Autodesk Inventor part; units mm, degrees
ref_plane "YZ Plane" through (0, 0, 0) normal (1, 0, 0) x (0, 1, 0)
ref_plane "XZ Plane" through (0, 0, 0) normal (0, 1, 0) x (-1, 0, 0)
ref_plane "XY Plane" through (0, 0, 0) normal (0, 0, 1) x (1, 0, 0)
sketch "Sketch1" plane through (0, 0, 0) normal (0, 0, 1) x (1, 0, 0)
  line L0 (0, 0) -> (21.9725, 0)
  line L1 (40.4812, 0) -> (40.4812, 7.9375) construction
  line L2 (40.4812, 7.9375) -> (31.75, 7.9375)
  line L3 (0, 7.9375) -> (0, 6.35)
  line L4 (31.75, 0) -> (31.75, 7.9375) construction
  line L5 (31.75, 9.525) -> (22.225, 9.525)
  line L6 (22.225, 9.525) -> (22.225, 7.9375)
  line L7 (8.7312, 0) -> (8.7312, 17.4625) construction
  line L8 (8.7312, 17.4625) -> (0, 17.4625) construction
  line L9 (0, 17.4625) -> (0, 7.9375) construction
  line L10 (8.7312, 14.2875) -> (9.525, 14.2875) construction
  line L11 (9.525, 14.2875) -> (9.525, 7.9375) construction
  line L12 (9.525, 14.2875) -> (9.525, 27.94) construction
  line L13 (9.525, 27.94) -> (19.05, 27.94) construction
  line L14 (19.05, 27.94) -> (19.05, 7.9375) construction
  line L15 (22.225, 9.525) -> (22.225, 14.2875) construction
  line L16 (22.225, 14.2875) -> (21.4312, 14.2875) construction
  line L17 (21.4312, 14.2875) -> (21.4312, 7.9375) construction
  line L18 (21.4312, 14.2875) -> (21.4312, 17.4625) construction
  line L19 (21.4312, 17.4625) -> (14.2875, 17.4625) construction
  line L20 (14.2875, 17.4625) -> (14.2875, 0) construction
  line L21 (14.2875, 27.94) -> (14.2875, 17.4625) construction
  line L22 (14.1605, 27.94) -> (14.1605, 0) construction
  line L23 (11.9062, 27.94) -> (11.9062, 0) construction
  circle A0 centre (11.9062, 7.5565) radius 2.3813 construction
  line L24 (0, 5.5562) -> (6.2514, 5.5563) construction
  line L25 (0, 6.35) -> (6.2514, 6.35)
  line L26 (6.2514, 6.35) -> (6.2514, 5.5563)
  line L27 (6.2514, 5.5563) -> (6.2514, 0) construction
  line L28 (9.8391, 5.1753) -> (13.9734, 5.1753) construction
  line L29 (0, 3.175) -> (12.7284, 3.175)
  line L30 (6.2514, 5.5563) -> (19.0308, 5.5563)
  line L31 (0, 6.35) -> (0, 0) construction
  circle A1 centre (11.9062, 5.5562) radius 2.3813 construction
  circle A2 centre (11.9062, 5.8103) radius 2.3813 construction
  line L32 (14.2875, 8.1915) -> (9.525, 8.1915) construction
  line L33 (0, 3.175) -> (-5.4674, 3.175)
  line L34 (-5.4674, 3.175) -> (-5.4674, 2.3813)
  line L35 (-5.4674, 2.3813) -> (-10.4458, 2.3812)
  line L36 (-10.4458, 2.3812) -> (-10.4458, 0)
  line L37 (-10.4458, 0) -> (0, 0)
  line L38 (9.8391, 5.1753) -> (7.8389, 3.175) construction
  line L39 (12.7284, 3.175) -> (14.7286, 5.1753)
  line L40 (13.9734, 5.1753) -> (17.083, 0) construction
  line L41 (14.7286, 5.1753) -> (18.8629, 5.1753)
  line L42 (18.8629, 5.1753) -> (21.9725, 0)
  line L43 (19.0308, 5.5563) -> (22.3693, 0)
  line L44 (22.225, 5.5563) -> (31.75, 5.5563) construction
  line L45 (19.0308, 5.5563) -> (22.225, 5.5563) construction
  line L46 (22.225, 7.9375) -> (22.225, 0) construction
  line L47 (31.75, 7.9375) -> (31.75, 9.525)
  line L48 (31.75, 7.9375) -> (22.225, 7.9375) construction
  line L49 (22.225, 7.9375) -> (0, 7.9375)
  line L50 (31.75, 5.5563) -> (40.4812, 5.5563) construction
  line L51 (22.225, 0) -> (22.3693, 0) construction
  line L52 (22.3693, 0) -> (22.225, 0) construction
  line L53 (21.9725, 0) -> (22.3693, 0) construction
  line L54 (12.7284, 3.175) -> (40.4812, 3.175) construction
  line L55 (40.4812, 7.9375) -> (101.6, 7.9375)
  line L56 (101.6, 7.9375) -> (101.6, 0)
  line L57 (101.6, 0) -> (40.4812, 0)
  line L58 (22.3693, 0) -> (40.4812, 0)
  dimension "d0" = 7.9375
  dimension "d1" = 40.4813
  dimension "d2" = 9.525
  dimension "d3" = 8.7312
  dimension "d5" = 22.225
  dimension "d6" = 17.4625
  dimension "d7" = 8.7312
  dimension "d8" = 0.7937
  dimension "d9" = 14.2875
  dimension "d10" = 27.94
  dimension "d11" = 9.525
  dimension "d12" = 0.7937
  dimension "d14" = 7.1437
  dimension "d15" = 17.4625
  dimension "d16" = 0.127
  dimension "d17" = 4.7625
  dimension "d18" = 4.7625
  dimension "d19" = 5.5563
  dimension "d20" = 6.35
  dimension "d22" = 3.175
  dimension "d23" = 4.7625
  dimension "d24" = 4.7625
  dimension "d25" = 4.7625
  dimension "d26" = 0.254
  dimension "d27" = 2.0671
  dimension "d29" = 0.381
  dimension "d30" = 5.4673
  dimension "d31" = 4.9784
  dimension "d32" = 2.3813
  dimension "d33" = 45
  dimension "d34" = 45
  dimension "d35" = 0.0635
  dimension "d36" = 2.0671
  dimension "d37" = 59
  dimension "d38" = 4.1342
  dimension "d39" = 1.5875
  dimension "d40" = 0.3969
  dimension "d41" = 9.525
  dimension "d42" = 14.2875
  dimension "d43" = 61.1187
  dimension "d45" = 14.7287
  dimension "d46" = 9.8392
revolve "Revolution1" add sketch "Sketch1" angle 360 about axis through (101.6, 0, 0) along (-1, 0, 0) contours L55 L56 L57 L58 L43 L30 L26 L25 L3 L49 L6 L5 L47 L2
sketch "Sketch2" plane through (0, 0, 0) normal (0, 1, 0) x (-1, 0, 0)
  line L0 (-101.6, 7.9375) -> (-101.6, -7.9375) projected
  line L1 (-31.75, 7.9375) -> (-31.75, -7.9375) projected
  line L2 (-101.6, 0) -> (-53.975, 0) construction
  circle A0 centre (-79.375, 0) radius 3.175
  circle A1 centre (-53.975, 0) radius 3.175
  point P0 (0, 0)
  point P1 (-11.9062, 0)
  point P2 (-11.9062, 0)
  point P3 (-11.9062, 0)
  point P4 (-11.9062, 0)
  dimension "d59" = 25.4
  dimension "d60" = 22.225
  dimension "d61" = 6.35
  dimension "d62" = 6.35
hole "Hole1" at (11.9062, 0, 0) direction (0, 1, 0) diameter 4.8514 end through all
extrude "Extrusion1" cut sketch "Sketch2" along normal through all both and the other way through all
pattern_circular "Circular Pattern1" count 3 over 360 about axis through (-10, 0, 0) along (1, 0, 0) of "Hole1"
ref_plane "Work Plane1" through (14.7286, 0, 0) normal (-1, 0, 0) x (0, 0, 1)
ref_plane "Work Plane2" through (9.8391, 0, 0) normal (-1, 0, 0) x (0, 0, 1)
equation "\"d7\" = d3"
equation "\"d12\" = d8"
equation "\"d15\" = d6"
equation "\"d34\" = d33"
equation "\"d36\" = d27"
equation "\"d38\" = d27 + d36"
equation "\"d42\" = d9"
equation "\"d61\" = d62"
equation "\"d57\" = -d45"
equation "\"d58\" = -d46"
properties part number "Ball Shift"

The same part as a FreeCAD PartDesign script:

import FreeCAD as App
import Part
import Sketcher
from FreeCAD import Vector
Q = App.Units.Quantity

doc = App.newDocument("Part")
params = doc.addObject("Spreadsheet::Sheet", "Params")
for row, (alias, value) in enumerate([
    ("sketch1_width", "0.375 in"),
    ("sketch1_width2", "0.875 in"),
    ("sketch1_height", "0.0625 in"),
    ("sketch1_height2", "0.031248 in"),
    ("sketch1_height3", "0.3125 in"),
    ("revolution_angle", "360 deg"),
    ("sketch2_diameter", "0.191 in"),
    ("hole_diameter", "0.191 in"),
    ("sketch3_diameter", "0.25 in"),
], start=1):
    params.set(f"A{row}", alias)
    params.set(f"B{row}", "=" + value)
    params.setAlias(f"B{row}", alias)

body = doc.addObject("PartDesign::Body", "Body")

sketch1 = body.newObject("Sketcher::SketchObject", "Sketch")
sketch1.AttachmentSupport = (doc.getObject("XY_Plane"), [""])
sketch1.MapMode = "FlatFace"
sketch1.addGeometry(Part.LineSegment(Vector(101.6, 7.9375, 0), Vector(31.75, 7.9375, 0)), False)
sketch1.addGeometry(Part.LineSegment(Vector(31.75, 7.9375, 0), Vector(31.75, 9.525, 0)), False)
sketch1.addGeometry(Part.LineSegment(Vector(31.75, 9.525, 0), Vector(22.225, 9.525, 0)), False)
sketch1.addGeometry(Part.LineSegment(Vector(22.225, 9.525, 0), Vector(22.225, 7.9375, 0)), False)
sketch1.addGeometry(Part.LineSegment(Vector(22.225, 7.9375, 0), Vector(0, 7.9375, 0)), False)
sketch1.addGeometry(Part.LineSegment(Vector(0, 7.9375, 0), Vector(0, 6.35, 0)), False)
sketch1.addGeometry(Part.LineSegment(Vector(0, 6.35, 0), Vector(6.2514, 6.35, 0)), False)
sketch1.addGeometry(Part.LineSegment(Vector(6.2514, 6.35, 0), Vector(6.2514, 5.5563, 0)), False)
sketch1.addGeometry(Part.LineSegment(Vector(6.2514, 5.5563, 0), Vector(19.0308, 5.5563, 0)), False)
sketch1.addGeometry(Part.LineSegment(Vector(19.0308, 5.5563, 0), Vector(22.3693, 0, 0)), False)
sketch1.addGeometry(Part.LineSegment(Vector(22.3693, 0, 0), Vector(101.6, 0, 0)), False)
sketch1.addGeometry(Part.LineSegment(Vector(101.6, 0, 0), Vector(101.6, 7.9375, 0)), False)
sketch1.addConstraint(Sketcher.Constraint("Coincident", 0, 2, 1, 1))
sketch1.addConstraint(Sketcher.Constraint("Coincident", 1, 2, 2, 1))
sketch1.addConstraint(Sketcher.Constraint("Coincident", 2, 2, 3, 1))
sketch1.addConstraint(Sketcher.Constraint("Coincident", 3, 2, 4, 1))
sketch1.addConstraint(Sketcher.Constraint("Coincident", 4, 2, 5, 1))
sketch1.addConstraint(Sketcher.Constraint("Coincident", 5, 2, 6, 1))
sketch1.addConstraint(Sketcher.Constraint("Coincident", 6, 2, 7, 1))
sketch1.addConstraint(Sketcher.Constraint("Coincident", 7, 2, 8, 1))
sketch1.addConstraint(Sketcher.Constraint("Coincident", 8, 2, 9, 1))
sketch1.addConstraint(Sketcher.Constraint("Coincident", 9, 2, 10, 1))
sketch1.addConstraint(Sketcher.Constraint("Coincident", 10, 2, 11, 1))
sketch1.addConstraint(Sketcher.Constraint("Coincident", 11, 2, 0, 1))
sketch1.addConstraint(Sketcher.Constraint("Horizontal", 0))
sketch1.addConstraint(Sketcher.Constraint("Vertical", 1))
sketch1.addConstraint(Sketcher.Constraint("Horizontal", 2))
sketch1.addConstraint(Sketcher.Constraint("Vertical", 3))
sketch1.addConstraint(Sketcher.Constraint("Horizontal", 4))
sketch1.addConstraint(Sketcher.Constraint("Vertical", 5))
sketch1.addConstraint(Sketcher.Constraint("Horizontal", 6))
sketch1.addConstraint(Sketcher.Constraint("Vertical", 7))
sketch1.addConstraint(Sketcher.Constraint("Horizontal", 8))
sketch1.addConstraint(Sketcher.Constraint("Horizontal", 10))
sketch1.addConstraint(Sketcher.Constraint("Vertical", 11))
sketch1.addConstraint(Sketcher.Constraint("PointOnObject", 4, 2, -2))
sketch1.addConstraint(Sketcher.Constraint("PointOnObject", 9, 2, -1))
sketch1.addConstraint(Sketcher.Constraint("Horizontal", 0, 2, 3, 2))
sketch1.addConstraint(Sketcher.Constraint("Equal", 3, 5))
sketch1.addConstraint(Sketcher.Constraint("Angle", 9, Q("-59.0005 deg")))
sketch1.addConstraint(Sketcher.Constraint("DistanceX", 2, 2, 2, 1, Q("0.375 in")))
sketch1.addConstraint(Sketcher.Constraint("DistanceX", 4, 2, 4, 1, Q("0.875 in")))
sketch1.addConstraint(Sketcher.Constraint("DistanceY", 1, 1, 1, 2, Q("0.0625 in")))
sketch1.addConstraint(Sketcher.Constraint("DistanceY", 7, 2, 7, 1, Q("0.031248 in")))
sketch1.addConstraint(Sketcher.Constraint("DistanceY", 11, 1, 11, 2, Q("0.3125 in")))
sketch1.addConstraint(Sketcher.Constraint("DistanceX", -1, 1, 10, 2, Q("4 in")))
sketch1.addConstraint(Sketcher.Constraint("DistanceX", 6, 1, 6, 2, Q("6.2514 mm")))
sketch1.addConstraint(Sketcher.Constraint("DistanceX", 8, 1, 8, 2, Q("12.7794 mm")))
sketch1.setExpression("Constraints[28]", "Params.sketch1_width")
sketch1.setExpression("Constraints[29]", "Params.sketch1_width2")
sketch1.setExpression("Constraints[30]", "Params.sketch1_height")
sketch1.setExpression("Constraints[31]", "Params.sketch1_height2")
sketch1.setExpression("Constraints[32]", "Params.sketch1_height3")
revolution = body.newObject("PartDesign::Revolution", "Revolution")
revolution.Profile = sketch1
revolution.ReferenceAxis = (sketch1, ["H_Axis"])
revolution.setExpression("Angle", "Params.revolution_angle")

sketch2 = body.newObject("Sketcher::SketchObject", "Sketch001")
sketch2.AttachmentSupport = (doc.getObject("XZ_Plane"), [""])
sketch2.MapMode = "FlatFace"
sketch2.addGeometry(Part.Circle(Vector(11.9062, 0, 0), Vector(0, 0, 1), 2.4257), False)
sketch2.addConstraint(Sketcher.Constraint("PointOnObject", 0, 3, -1))
sketch2.addConstraint(Sketcher.Constraint("Diameter", 0, Q("0.191 in")))
sketch2.addConstraint(Sketcher.Constraint("DistanceX", -1, 1, 0, 3, Q("0.468748 in")))
sketch2.setExpression("Constraints[1]", "Params.sketch2_diameter")
doc.recompute()
hole = body.newObject("PartDesign::Hole", "Hole")
hole.Profile = sketch2
hole.ThreadType = "None"
hole.setExpression("Diameter", "Params.hole_diameter")
hole.DepthType = "ThroughAll"

sketch3 = body.newObject("Sketcher::SketchObject", "Sketch002")
sketch3.AttachmentSupport = (doc.getObject("XZ_Plane"), [""])
sketch3.MapMode = "FlatFace"
sketch3.addGeometry(Part.Circle(Vector(79.375, 0, 0), Vector(0, 0, 1), 3.175), False)
sketch3.addGeometry(Part.Circle(Vector(53.975, 0, 0), Vector(0, 0, 1), 3.175), False)
sketch3.addConstraint(Sketcher.Constraint("Equal", 0, 1))
sketch3.addConstraint(Sketcher.Constraint("PointOnObject", 0, 3, -1))
sketch3.addConstraint(Sketcher.Constraint("PointOnObject", 1, 3, -1))
sketch3.addConstraint(Sketcher.Constraint("Diameter", 0, Q("0.25 in")))
sketch3.addConstraint(Sketcher.Constraint("DistanceX", 1, 3, 0, 3, Q("1 in")))
sketch3.addConstraint(Sketcher.Constraint("DistanceX", -1, 1, 0, 3, Q("3.125 in")))
sketch3.setExpression("Constraints[3]", "Params.sketch3_diameter")
pocket1 = body.newObject("PartDesign::Pocket", "Pocket")
pocket1.Profile = sketch3
pocket1.Type = "ThroughAll"
pocket1.Midplane = True
doc.recompute()

polarpattern = body.newObject("PartDesign::PolarPattern", "PolarPattern")
polarpattern.Originals = [hole]
polarpattern.Axis = (doc.getObject("X_Axis"), [""])
polarpattern.Angle = 360
polarpattern.Occurrences = 3
body.Tip = polarpattern

doc.recompute()
